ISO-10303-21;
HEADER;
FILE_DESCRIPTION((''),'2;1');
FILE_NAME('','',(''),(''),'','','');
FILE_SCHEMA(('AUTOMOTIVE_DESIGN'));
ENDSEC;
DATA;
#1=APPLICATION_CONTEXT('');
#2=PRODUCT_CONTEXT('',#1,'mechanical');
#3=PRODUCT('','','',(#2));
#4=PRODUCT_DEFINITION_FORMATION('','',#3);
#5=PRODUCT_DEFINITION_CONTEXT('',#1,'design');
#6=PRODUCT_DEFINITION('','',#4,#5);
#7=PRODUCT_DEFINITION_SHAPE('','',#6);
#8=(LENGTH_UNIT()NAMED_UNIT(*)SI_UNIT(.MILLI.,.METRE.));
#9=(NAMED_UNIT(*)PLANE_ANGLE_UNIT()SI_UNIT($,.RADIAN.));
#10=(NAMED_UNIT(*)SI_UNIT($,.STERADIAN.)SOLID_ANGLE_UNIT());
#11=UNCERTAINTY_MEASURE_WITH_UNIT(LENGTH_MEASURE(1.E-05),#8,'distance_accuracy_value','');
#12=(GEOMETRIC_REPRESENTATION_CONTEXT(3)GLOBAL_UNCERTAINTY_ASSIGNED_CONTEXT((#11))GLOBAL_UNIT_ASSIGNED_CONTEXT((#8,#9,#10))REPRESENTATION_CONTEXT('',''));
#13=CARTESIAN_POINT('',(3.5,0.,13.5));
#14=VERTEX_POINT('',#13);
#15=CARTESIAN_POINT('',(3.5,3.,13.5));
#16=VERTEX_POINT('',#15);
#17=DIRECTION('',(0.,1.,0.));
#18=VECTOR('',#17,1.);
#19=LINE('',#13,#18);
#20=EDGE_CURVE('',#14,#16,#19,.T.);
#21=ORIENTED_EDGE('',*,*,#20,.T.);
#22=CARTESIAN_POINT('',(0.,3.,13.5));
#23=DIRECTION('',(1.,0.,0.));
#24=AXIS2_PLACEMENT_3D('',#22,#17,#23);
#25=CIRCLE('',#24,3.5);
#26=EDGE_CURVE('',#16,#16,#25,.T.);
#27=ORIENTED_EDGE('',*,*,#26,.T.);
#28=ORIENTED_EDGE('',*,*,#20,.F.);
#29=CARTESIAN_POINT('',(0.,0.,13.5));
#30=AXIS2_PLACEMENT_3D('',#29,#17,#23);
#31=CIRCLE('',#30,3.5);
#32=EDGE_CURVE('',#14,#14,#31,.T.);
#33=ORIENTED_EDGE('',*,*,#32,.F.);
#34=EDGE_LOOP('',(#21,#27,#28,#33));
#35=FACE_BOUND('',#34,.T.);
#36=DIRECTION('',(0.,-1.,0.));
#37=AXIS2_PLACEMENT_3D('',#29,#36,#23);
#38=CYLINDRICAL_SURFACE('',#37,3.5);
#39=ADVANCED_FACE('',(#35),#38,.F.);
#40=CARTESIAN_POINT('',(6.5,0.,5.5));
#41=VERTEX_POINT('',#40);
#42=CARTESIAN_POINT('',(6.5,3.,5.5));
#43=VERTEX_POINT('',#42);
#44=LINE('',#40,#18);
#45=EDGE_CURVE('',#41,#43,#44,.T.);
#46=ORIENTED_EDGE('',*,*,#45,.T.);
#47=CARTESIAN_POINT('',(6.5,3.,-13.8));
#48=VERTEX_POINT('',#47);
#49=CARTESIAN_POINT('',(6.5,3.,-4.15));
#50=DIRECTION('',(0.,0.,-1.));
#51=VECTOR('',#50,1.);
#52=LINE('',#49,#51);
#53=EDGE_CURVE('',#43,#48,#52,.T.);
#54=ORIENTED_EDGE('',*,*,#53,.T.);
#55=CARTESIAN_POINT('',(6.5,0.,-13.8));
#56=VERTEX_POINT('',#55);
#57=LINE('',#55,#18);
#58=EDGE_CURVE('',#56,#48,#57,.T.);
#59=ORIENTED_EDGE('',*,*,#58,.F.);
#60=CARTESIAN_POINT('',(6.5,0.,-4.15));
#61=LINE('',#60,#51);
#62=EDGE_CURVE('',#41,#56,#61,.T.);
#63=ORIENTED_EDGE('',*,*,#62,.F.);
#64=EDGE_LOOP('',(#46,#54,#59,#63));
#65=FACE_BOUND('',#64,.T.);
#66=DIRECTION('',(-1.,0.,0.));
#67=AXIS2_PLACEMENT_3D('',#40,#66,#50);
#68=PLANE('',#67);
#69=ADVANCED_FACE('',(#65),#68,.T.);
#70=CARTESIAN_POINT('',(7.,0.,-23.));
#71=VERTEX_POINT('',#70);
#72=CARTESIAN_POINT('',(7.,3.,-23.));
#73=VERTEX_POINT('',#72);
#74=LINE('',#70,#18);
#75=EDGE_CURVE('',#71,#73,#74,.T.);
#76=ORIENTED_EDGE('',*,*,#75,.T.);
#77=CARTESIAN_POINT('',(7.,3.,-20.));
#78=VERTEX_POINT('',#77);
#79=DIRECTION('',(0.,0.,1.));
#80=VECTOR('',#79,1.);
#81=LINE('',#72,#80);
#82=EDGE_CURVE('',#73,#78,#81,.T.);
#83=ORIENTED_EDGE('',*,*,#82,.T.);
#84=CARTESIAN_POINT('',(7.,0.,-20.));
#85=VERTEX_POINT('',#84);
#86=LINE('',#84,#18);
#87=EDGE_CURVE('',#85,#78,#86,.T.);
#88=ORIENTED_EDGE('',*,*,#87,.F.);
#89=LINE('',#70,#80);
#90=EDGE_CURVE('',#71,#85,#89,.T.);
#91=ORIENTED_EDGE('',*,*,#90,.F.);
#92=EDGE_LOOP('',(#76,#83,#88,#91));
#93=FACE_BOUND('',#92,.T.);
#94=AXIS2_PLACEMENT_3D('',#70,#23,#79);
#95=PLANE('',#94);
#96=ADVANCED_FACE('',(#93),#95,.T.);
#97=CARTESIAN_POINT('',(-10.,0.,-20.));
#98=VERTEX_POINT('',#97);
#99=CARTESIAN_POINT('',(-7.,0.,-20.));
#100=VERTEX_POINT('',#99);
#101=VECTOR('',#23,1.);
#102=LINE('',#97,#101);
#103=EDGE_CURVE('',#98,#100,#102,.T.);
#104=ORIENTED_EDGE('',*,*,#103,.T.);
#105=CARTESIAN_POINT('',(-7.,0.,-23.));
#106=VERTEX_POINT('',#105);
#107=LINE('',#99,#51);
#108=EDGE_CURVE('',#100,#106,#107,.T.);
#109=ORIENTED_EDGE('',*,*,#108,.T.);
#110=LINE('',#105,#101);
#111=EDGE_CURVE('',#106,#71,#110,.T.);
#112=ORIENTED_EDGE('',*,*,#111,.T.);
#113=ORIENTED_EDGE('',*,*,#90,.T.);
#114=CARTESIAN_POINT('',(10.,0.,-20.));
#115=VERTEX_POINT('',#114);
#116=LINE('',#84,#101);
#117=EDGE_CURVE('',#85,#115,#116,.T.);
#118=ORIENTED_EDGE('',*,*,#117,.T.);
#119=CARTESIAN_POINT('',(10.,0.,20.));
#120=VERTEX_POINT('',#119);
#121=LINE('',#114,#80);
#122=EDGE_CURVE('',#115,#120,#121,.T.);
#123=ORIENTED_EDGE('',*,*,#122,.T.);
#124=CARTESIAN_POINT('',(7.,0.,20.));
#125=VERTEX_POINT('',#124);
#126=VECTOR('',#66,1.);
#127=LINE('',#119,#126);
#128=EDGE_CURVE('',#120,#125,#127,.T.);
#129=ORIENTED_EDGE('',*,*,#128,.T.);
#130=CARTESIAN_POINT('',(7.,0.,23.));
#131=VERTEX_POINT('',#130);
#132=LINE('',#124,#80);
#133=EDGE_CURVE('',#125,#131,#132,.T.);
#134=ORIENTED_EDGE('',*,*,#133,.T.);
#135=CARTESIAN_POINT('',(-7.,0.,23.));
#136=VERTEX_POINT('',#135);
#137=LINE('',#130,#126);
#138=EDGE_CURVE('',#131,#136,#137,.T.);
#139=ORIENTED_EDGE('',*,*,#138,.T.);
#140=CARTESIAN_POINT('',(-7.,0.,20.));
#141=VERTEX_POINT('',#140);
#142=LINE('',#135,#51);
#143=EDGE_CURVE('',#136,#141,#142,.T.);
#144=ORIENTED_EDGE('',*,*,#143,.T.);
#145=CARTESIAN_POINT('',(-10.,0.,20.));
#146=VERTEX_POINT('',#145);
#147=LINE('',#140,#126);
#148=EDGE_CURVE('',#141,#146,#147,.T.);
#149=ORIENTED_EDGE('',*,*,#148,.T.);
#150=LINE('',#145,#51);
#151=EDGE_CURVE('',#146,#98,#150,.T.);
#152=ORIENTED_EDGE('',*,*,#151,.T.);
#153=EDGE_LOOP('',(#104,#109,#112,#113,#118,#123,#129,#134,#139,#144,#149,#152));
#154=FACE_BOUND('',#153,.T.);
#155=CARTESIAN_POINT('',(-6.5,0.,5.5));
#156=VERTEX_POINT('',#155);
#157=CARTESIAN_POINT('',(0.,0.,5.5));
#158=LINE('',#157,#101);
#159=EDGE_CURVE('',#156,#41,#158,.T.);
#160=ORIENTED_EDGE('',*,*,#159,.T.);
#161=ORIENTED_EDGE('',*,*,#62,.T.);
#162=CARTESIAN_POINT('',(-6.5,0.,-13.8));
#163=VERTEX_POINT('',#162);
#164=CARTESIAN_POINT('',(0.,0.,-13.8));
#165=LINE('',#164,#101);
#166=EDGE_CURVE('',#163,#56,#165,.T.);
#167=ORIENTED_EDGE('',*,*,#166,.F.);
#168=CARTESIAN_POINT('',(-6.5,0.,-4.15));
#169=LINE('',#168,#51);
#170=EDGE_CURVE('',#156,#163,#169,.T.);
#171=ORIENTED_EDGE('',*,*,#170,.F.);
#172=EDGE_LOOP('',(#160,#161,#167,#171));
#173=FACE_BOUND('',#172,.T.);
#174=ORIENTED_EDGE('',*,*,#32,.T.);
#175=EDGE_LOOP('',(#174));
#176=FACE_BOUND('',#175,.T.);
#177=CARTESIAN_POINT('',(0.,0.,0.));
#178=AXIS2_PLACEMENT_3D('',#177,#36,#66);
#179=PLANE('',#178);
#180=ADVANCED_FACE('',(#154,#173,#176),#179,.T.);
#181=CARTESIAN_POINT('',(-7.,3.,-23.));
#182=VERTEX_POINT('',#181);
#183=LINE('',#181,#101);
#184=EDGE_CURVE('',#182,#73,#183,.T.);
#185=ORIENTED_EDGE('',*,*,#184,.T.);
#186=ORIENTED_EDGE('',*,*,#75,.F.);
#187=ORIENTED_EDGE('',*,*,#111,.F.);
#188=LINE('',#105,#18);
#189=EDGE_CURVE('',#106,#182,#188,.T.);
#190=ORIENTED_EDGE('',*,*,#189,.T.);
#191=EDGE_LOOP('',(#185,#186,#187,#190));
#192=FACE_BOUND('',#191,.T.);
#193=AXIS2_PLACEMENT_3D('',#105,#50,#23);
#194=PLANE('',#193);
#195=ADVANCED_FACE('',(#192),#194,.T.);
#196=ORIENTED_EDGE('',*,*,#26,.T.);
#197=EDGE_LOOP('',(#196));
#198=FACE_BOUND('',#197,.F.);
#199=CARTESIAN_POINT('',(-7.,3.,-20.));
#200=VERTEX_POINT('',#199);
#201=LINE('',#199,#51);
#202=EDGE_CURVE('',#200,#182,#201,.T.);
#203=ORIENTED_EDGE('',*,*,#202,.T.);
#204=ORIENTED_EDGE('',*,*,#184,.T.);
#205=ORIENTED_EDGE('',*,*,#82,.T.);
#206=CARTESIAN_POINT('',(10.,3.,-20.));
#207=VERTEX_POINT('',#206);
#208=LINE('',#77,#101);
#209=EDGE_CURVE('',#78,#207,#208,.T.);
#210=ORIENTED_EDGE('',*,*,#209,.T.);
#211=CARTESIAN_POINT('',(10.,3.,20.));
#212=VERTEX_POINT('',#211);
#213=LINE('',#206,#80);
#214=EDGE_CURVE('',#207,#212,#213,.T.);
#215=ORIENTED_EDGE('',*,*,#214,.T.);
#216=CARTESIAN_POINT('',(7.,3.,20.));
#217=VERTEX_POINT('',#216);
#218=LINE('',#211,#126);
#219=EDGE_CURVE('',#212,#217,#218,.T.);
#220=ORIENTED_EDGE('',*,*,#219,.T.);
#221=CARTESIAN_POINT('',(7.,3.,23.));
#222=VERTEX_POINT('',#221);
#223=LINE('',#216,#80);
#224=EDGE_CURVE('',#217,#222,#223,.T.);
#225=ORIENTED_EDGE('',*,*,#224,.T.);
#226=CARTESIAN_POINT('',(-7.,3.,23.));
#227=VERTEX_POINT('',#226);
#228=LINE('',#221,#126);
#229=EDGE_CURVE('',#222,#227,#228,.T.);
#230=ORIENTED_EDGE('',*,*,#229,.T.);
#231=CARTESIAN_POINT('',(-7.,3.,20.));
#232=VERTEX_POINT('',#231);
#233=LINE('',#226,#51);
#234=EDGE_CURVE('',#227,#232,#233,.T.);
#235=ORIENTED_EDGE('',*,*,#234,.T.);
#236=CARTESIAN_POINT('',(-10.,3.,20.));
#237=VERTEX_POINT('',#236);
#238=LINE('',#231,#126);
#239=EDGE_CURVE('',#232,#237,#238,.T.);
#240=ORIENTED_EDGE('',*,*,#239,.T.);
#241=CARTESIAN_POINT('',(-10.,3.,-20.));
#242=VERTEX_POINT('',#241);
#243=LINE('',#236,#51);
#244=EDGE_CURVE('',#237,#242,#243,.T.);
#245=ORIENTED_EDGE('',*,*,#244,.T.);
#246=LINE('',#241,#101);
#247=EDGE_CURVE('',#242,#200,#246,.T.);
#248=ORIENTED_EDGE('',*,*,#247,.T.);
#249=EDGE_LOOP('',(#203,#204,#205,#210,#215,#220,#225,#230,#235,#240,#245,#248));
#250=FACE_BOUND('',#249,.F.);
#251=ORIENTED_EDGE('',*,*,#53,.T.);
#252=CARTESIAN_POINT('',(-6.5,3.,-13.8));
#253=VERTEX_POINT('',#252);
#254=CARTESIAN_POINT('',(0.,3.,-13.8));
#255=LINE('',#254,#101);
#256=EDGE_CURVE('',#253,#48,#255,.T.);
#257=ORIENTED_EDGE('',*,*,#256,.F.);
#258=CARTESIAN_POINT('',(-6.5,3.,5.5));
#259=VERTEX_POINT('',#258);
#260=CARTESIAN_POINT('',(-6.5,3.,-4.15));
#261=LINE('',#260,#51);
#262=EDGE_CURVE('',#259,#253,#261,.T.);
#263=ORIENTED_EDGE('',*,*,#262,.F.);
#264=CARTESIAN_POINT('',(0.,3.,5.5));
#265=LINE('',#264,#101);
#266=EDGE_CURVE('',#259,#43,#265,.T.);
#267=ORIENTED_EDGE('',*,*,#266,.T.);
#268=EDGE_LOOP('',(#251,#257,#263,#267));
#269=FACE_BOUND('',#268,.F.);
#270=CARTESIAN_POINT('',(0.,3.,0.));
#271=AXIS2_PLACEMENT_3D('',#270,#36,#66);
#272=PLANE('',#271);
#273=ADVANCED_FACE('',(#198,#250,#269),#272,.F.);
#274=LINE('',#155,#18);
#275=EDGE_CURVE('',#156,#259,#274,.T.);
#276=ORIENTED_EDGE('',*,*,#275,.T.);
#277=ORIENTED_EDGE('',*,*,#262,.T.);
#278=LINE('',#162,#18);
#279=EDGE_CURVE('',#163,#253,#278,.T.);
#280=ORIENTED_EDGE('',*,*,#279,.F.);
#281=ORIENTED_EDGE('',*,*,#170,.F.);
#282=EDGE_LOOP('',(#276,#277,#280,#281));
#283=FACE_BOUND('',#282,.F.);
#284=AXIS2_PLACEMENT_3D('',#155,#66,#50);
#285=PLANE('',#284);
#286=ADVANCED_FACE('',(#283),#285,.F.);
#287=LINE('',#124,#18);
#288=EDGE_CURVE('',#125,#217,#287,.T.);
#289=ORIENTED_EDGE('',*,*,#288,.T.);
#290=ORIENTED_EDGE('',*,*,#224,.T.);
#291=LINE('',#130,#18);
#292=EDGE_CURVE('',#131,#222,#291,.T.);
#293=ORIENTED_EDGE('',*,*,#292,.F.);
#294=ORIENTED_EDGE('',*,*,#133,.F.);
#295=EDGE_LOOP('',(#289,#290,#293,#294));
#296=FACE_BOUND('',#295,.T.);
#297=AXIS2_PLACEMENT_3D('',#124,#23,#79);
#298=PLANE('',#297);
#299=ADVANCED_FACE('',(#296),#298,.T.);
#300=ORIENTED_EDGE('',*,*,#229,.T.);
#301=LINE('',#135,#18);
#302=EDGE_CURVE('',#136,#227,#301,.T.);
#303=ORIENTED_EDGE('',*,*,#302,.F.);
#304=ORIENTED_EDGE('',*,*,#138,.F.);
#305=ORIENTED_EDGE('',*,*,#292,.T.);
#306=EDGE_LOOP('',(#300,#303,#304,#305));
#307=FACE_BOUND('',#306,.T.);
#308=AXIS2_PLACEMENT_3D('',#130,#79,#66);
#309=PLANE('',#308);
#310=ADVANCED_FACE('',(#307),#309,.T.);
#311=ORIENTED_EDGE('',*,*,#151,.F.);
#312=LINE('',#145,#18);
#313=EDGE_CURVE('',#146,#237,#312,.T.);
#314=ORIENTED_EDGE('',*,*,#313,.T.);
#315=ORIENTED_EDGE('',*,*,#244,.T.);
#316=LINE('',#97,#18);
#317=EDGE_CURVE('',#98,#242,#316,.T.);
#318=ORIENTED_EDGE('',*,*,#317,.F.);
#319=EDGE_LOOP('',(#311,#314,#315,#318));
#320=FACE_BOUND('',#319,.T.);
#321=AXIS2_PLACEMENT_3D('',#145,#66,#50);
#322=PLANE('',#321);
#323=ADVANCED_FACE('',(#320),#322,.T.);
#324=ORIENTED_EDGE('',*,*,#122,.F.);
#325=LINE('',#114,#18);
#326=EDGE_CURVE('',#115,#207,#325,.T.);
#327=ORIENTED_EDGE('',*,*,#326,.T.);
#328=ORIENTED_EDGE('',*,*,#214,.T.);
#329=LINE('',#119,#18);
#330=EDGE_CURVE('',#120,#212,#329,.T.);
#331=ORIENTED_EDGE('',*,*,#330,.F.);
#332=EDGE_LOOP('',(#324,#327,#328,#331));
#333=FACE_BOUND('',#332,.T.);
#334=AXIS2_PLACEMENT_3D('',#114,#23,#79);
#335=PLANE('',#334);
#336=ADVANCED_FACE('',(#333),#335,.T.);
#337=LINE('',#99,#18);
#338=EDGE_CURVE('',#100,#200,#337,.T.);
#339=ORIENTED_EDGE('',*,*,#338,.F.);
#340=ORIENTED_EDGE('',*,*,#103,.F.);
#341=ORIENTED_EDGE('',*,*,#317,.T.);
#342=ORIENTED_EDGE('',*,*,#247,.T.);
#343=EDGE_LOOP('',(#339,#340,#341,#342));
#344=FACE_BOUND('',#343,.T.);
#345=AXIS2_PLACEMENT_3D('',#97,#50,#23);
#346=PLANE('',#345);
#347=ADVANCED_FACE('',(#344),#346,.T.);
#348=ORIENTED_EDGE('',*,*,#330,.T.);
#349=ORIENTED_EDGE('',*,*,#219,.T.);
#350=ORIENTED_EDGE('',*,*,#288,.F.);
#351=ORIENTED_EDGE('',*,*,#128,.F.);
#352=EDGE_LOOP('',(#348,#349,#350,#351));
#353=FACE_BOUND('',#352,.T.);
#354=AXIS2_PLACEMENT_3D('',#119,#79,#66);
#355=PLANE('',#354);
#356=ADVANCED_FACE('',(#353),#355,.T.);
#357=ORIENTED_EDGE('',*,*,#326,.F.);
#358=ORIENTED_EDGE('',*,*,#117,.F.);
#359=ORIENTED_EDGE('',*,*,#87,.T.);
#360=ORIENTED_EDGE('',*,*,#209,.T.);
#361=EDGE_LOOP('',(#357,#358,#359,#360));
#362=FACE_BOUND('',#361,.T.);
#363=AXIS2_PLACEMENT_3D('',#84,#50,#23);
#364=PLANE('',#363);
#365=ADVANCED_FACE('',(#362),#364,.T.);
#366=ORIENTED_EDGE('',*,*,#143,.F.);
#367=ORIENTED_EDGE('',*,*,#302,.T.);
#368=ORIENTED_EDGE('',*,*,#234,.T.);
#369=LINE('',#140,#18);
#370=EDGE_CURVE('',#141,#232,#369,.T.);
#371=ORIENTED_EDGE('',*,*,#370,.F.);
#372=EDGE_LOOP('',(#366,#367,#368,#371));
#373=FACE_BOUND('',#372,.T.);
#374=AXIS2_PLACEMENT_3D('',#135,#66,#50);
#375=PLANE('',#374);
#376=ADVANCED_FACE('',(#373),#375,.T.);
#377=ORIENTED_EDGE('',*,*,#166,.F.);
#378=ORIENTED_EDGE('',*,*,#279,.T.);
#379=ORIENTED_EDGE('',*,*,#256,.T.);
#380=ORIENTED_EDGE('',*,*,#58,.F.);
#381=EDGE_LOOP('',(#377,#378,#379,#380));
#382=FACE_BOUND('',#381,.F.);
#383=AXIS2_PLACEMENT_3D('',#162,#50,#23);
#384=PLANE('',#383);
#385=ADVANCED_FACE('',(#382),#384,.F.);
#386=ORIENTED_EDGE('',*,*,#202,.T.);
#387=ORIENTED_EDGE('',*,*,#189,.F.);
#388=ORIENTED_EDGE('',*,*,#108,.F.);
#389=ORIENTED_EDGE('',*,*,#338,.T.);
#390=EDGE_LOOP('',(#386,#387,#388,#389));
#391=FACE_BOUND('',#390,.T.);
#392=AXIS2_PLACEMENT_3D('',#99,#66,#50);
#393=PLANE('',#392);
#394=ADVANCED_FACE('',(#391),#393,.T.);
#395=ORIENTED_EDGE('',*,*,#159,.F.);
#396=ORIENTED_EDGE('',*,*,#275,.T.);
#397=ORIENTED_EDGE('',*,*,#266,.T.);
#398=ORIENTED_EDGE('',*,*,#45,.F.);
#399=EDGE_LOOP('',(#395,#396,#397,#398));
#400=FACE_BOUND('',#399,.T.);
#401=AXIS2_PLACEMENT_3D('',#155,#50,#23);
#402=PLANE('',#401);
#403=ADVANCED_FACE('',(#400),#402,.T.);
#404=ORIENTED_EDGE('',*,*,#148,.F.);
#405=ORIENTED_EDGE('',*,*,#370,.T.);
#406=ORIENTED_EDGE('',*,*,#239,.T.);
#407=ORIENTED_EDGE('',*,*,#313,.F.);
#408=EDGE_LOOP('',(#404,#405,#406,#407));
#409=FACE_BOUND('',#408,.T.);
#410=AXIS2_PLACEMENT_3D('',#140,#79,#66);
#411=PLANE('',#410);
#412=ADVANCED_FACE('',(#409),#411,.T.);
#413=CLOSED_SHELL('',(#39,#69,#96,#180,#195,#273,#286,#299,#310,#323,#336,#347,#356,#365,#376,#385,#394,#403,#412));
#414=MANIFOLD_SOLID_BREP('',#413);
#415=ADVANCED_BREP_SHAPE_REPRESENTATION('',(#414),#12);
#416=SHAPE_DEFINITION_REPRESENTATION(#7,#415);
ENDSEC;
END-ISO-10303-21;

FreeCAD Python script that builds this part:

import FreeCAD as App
import Part
import Sketcher


def add_polygon(sketch, points):
    """Adds a closed chain of lines whose ends are joined by coincident constraints."""
    first, n = sketch.GeometryCount, len(points)
    for a, b in zip(points, points[1:] + points[:1]):
        sketch.addGeometry(Part.LineSegment(App.Vector(*a, 0), App.Vector(*b, 0)), False)
    for i in range(n):
        sketch.addConstraint(Sketcher.Constraint("Coincident", first + i, 2, first + (i + 1) % n, 1))

doc = App.newDocument("Part")
params = doc.addObject("Spreadsheet::Sheet", "Params")
for row, (alias, value) in enumerate([
    ("sketch1_diameter", "7 mm"),
    ("sketch1_width", "3 mm"),
    ("sketch1_width2", "14 mm"),
    ("sketch1_width3", "13 mm"),
    ("sketch1_height", "40 mm"),
    ("pad1_length", "3 mm"),
], start=1):
    params.set(f"A{row}", alias)
    params.set(f"B{row}", "=" + value)
    params.setAlias(f"B{row}", alias)

body = doc.addObject("PartDesign::Body", "Body")

sketch1 = doc.addObject("Sketcher::SketchObject", "Sketch")
body.addObject(sketch1)
sketch1.AttachmentSupport = (doc.XZ_Plane, [""])
sketch1.MapMode = "FlatFace"
add_polygon(sketch1, [(10, -20), (7, -20), (7, -23), (-7, -23), (-7, -20), (-10, -20), (-10, 20), (-7, 20), (-7, 23), (7, 23), (7, 20), (10, 20)])
sketch1.addGeometry(Part.Circle(App.Vector(0, 13.5, 0), App.Vector(0, 0, 1), 3.5), False)
add_polygon(sketch1, [(-6.5, 5.5), (-6.5, -13.8), (6.5, -13.8), (6.5, 5.5)])
sketch1.addConstraint([
    Sketcher.Constraint("Horizontal", 0),
    Sketcher.Constraint("Vertical", 1),
    Sketcher.Constraint("Horizontal", 2),
    Sketcher.Constraint("Vertical", 3),
    Sketcher.Constraint("Horizontal", 4),
    Sketcher.Constraint("Vertical", 5),
    Sketcher.Constraint("Horizontal", 6),
    Sketcher.Constraint("Vertical", 7),
    Sketcher.Constraint("Horizontal", 8),
    Sketcher.Constraint("Vertical", 9),
    Sketcher.Constraint("Horizontal", 10),
    Sketcher.Constraint("Vertical", 11),
    Sketcher.Constraint("Vertical", 13),
    Sketcher.Constraint("Horizontal", 14),
    Sketcher.Constraint("Vertical", 15),
    Sketcher.Constraint("Horizontal", 16),
    Sketcher.Constraint("Symmetric", 0, 2, 6, 2, -1, 1),
    Sketcher.Constraint("Symmetric", 2, 2, 8, 2, -1, 1),
    Sketcher.Constraint("Symmetric", 4, 2, 10, 2, -1, 1),
    Sketcher.Constraint("Symmetric", 0, 2, 3, 2, -2),
    Sketcher.Constraint("PointOnObject", 12, 3, -2),
    Sketcher.Constraint("Equal", 10, 1),
    Sketcher.Constraint("Diameter", 12, 7.0),
    Sketcher.Constraint("DistanceX", 0, 2, 0, 1, 3.0),
    Sketcher.Constraint("DistanceX", 2, 2, 2, 1, 14.0),
    Sketcher.Constraint("DistanceX", 14, 1, 14, 2, 13.0),
    Sketcher.Constraint("DistanceY", 5, 1, 5, 2, 40.0),
    Sketcher.Constraint("DistanceY", 13, 2, 13, 1, 19.3),
    Sketcher.Constraint("DistanceY", 15, 2, 12, 3, 8.0),
    Sketcher.Constraint("DistanceY", -1, 1, 12, 3, 13.5),
    Sketcher.Constraint("DistanceX", 13, 2, -1, 1, 6.5),
])
sketch1.setExpression("Constraints[38]", "Params.sketch1_diameter")
sketch1.setExpression("Constraints[39]", "Params.sketch1_width")
sketch1.setExpression("Constraints[40]", "Params.sketch1_width2")
sketch1.setExpression("Constraints[41]", "Params.sketch1_width3")
sketch1.setExpression("Constraints[42]", "Params.sketch1_height")
pad1 = doc.addObject("PartDesign::Pad", "Pad")
body.addObject(pad1)
pad1.Profile = sketch1
pad1.setExpression("Length", "Params.pad1_length")
pad1.Reversed = True

doc.recompute()
